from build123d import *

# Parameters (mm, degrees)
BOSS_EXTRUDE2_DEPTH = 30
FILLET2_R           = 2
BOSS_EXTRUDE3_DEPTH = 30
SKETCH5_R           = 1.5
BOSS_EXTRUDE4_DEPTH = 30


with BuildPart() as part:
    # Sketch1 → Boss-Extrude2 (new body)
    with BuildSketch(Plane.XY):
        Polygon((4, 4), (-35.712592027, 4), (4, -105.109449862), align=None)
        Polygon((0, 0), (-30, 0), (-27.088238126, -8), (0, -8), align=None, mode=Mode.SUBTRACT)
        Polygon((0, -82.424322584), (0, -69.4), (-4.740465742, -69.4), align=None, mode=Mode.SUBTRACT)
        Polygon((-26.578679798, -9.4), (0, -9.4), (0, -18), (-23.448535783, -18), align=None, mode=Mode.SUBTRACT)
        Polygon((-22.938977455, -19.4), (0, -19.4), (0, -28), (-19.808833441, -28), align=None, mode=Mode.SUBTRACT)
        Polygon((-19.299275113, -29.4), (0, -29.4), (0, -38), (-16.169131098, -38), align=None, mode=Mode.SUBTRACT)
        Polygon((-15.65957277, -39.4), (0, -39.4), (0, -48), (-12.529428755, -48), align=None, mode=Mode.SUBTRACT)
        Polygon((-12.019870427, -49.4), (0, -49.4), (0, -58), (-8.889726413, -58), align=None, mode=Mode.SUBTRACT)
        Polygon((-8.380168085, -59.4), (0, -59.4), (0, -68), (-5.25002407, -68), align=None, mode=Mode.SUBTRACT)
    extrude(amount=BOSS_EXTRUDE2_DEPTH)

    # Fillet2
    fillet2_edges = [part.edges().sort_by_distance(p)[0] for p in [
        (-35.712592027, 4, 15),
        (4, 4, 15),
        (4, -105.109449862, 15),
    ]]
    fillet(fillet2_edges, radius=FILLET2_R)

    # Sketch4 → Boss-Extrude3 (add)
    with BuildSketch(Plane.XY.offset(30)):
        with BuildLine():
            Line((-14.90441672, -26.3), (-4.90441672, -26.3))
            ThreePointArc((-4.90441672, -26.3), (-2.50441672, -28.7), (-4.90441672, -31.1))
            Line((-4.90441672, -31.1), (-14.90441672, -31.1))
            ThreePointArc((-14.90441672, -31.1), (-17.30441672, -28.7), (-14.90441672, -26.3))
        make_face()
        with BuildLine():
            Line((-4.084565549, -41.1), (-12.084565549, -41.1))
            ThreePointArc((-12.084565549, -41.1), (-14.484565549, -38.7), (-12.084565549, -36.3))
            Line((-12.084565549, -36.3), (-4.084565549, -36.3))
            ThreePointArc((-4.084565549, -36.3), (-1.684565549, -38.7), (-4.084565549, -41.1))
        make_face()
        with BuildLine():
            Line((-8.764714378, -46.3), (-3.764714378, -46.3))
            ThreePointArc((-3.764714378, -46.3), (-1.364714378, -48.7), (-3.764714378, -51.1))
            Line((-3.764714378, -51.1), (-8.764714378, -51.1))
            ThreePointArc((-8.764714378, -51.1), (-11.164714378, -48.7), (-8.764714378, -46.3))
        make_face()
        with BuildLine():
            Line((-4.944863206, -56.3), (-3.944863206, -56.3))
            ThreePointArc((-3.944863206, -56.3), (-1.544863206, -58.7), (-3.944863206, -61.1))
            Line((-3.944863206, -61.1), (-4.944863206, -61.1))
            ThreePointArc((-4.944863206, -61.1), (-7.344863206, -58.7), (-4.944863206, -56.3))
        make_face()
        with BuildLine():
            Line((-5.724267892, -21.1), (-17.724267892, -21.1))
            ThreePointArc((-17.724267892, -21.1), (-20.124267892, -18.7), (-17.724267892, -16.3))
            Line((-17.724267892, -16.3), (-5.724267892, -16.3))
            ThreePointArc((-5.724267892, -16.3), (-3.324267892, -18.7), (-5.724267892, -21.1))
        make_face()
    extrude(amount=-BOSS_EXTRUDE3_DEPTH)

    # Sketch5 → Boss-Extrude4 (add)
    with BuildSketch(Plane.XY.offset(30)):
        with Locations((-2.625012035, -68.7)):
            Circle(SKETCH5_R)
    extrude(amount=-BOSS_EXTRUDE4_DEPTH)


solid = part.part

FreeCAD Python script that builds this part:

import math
import FreeCAD as App
import Part
import Sketcher
from FreeCAD import Vector
Q = App.Units.Quantity


def edges_at(feature, points):
    """Names of the edges that pass closest to the given points."""
    edges = feature.Shape.Edges
    near = lambda p: min(range(len(edges)), key=lambda i: edges[i].distToShape(Part.Vertex(*p))[0])
    return sorted({f"Edge{near(p) + 1}" for p in points})


def add_polygon(sketch, points):
    """Adds a closed chain of lines whose ends are joined by coincident constraints."""
    first, n = sketch.GeometryCount, len(points)
    for a, b in zip(points, points[1:] + points[:1]):
        sketch.addGeometry(Part.LineSegment(App.Vector(*a, 0), App.Vector(*b, 0)), False)
    for i in range(n):
        sketch.addConstraint(Sketcher.Constraint("Coincident", first + i, 2, first + (i + 1) % n, 1))

doc = App.newDocument("Part")
body = doc.addObject("PartDesign::Body", "Body")

# Sketch on XY plane
sketch1 = body.newObject("Sketcher::SketchObject", "Sketch")
sketch1.AttachmentSupport = (doc.getObject("XY_Plane"), [""])
sketch1.MapMode = "FlatFace"
add_polygon(sketch1, [(4, 4), (-35.712592, 4), (4, -105.10945)])  # lines 0-2
add_polygon(sketch1, [(0, -69.4), (0, -82.424323), (-4.740466, -69.4)])  # lines 3-5
add_polygon(sketch1, [(-5.250024, -68), (-8.380168, -59.4), (0, -59.4), (0, -68)])  # lines 6-9
add_polygon(sketch1, [(-12.529429, -48), (-15.659573, -39.4), (0, -39.4), (0, -48)])  # lines 10-13
add_polygon(sketch1, [(-8.889726, -58), (-12.01987, -49.4), (0, -49.4), (0, -58)])  # lines 14-17
add_polygon(sketch1, [(-16.169131, -38), (-19.299275, -29.4), (0, -29.4), (0, -38)])  # lines 18-21
add_polygon(sketch1, [(-19.808833, -28), (-22.938977, -19.4), (0, -19.4), (0, -28)])  # lines 22-25
add_polygon(sketch1, [(-23.448536, -18), (-26.57868, -9.4), (0, -9.4), (0, -18)])  # lines 26-29
add_polygon(sketch1, [(-30, 0), (0, 0), (0, -8), (-27.088238, -8)])  # lines 30-33
sketch1.addConstraint(Sketcher.Constraint("Horizontal", 0))
sketch1.addConstraint(Sketcher.Constraint("Vertical", 2))
sketch1.addConstraint(Sketcher.Constraint("Vertical", 3))
sketch1.addConstraint(Sketcher.Constraint("Horizontal", 5))
sketch1.addConstraint(Sketcher.Constraint("Horizontal", 7))
sketch1.addConstraint(Sketcher.Constraint("Vertical", 8))
sketch1.addConstraint(Sketcher.Constraint("Horizontal", 9))
sketch1.addConstraint(Sketcher.Constraint("Horizontal", 11))
sketch1.addConstraint(Sketcher.Constraint("Vertical", 12))
sketch1.addConstraint(Sketcher.Constraint("Horizontal", 13))
sketch1.addConstraint(Sketcher.Constraint("Horizontal", 15))
sketch1.addConstraint(Sketcher.Constraint("Vertical", 16))
sketch1.addConstraint(Sketcher.Constraint("Horizontal", 17))
sketch1.addConstraint(Sketcher.Constraint("Horizontal", 19))
sketch1.addConstraint(Sketcher.Constraint("Vertical", 20))
sketch1.addConstraint(Sketcher.Constraint("Horizontal", 21))
sketch1.addConstraint(Sketcher.Constraint("Horizontal", 23))
sketch1.addConstraint(Sketcher.Constraint("Vertical", 24))
sketch1.addConstraint(Sketcher.Constraint("Horizontal", 25))
sketch1.addConstraint(Sketcher.Constraint("Horizontal", 27))
sketch1.addConstraint(Sketcher.Constraint("Vertical", 28))
sketch1.addConstraint(Sketcher.Constraint("Horizontal", 29))
sketch1.addConstraint(Sketcher.Constraint("Horizontal", 30))
sketch1.addConstraint(Sketcher.Constraint("Vertical", 31))
sketch1.addConstraint(Sketcher.Constraint("Horizontal", 32))
sketch1.addConstraint(Sketcher.Constraint("Coincident", 30, 2, -1, 1))
sketch1.addConstraint(Sketcher.Constraint("PointOnObject", 3, 2, -2))
sketch1.addConstraint(Sketcher.Constraint("PointOnObject", 7, 2, -2))
sketch1.addConstraint(Sketcher.Constraint("PointOnObject", 11, 2, -2))
sketch1.addConstraint(Sketcher.Constraint("PointOnObject", 15, 2, -2))
sketch1.addConstraint(Sketcher.Constraint("PointOnObject", 19, 2, -2))
sketch1.addConstraint(Sketcher.Constraint("PointOnObject", 23, 2, -2))
sketch1.addConstraint(Sketcher.Constraint("PointOnObject", 27, 2, -2))
sketch1.addConstraint(Sketcher.Constraint("Parallel", 1, 4))
sketch1.addConstraint(Sketcher.Constraint("Parallel", 4, 6))
sketch1.addConstraint(Sketcher.Constraint("Parallel", 6, 10))
sketch1.addConstraint(Sketcher.Constraint("Parallel", 10, 14))
sketch1.addConstraint(Sketcher.Constraint("Parallel", 14, 18))
sketch1.addConstraint(Sketcher.Constraint("Parallel", 18, 22))
sketch1.addConstraint(Sketcher.Constraint("Parallel", 22, 26))
sketch1.addConstraint(Sketcher.Constraint("Parallel", 26, 33))
sketch1.addConstraint(Sketcher.Constraint("Equal", 8, 12))
sketch1.addConstraint(Sketcher.Constraint("Equal", 12, 16))
sketch1.addConstraint(Sketcher.Constraint("Equal", 16, 20))
sketch1.addConstraint(Sketcher.Constraint("Equal", 20, 24))
sketch1.addConstraint(Sketcher.Constraint("Equal", 24, 28))
sketch1.addConstraint(Sketcher.Constraint("DistanceX", 30, 1, 30, 2, 30.0))
sketch1.addConstraint(Sketcher.Constraint("DistanceY", 31, 2, 31, 1, 8.0))
sketch1.addConstraint(Sketcher.Constraint("Angle", 1, Q("-70 deg")))
sketch1.addConstraint(Sketcher.Constraint("DistanceY", 8, 2, 8, 1, 8.6))
sketch1.addConstraint(Sketcher.Constraint("DistanceY", -1, 1, 0, 2, 4.0))
sketch1.addConstraint(Sketcher.Constraint("DistanceX", -1, 1, 1, 2, 4.0))
sketch1.addConstraint(Sketcher.Constraint("DistanceY", 8, 2, -1, 1, 68.0))
sketch1.addConstraint(Sketcher.Constraint("DistanceY", 12, 2, -1, 1, 48.0))
sketch1.addConstraint(Sketcher.Constraint("DistanceY", 16, 2, -1, 1, 58.0))
sketch1.addConstraint(Sketcher.Constraint("DistanceY", 20, 2, -1, 1, 38.0))
sketch1.addConstraint(Sketcher.Constraint("DistanceY", 24, 2, -1, 1, 28.0))
sketch1.addConstraint(Sketcher.Constraint("DistanceY", 28, 2, -1, 1, 18.0))
sketch1.addConstraint(Sketcher.Constraint("DistanceY", 4, 2, 6, 2, 10.0))
sketch1.addConstraint(Sketcher.Constraint("DistanceX", 7, 1, 7, 2, 8.380168))
sketch1.addConstraint(Sketcher.Constraint("DistanceX", 13, 2, 13, 1, 12.529429))
sketch1.addConstraint(Sketcher.Constraint("DistanceX", 15, 1, 15, 2, 12.01987))
sketch1.addConstraint(Sketcher.Constraint("DistanceX", 21, 2, 21, 1, 16.169131))
sketch1.addConstraint(Sketcher.Constraint("DistanceX", 27, 1, 27, 2, 26.57868))
sketch1.addConstraint(Sketcher.Constraint("DistanceY", 2, 1, 2, 2, 109.10945))
sketch1.addConstraint(Sketcher.Constraint("DistanceX", 5, 1, 5, 2, 4.740466))
sketch1.addConstraint(Sketcher.Constraint("DistanceX", 23, 1, 23, 2, 22.938977))
pad1 = body.newObject("PartDesign::Pad", "Pad")
pad1.Profile = sketch1
pad1.Length = 30
doc.recompute()

fillet = body.newObject("PartDesign::Fillet", "Fillet")
fillet.Base = (pad1, edges_at(pad1, [(-35.713, 4, 15), (4, 4, 15), (4, -105.109, 15)]))
fillet.Radius = 2

# Sketch on XY plane
sketch2 = body.newObject("Sketcher::SketchObject", "Sketch001")
sketch2.AttachmentSupport = (doc.getObject("XY_Plane"), [""])
sketch2.MapMode = "FlatFace"
sketch2.AttachmentOffset = App.Placement(Vector(0, 0, 30), App.Rotation())
sketch2.addGeometry(Part.LineSegment(Vector(-4.904417, -26.3, 0), Vector(-14.904417, -26.3, 0)), False)
sketch2.addGeometry(Part.ArcOfCircle(Part.Circle(Vector(-14.904417, -28.7, 0), Vector(0, 0, 1), 2.4), math.radians(90), math.radians(270)), False)
sketch2.addGeometry(Part.LineSegment(Vector(-14.904417, -31.1, 0), Vector(-4.904417, -31.1, 0)), False)
sketch2.addGeometry(Part.ArcOfCircle(Part.Circle(Vector(-4.904417, -28.7, 0), Vector(0, 0, 1), 2.4), math.radians(-90), math.radians(90)), False)
sketch2.addGeometry(Part.LineSegment(Vector(-12.084566, -41.1, 0), Vector(-4.084566, -41.1, 0)), False)
sketch2.addGeometry(Part.ArcOfCircle(Part.Circle(Vector(-4.084566, -38.7, 0), Vector(0, 0, 1), 2.4), math.radians(-90), math.radians(90)), False)
sketch2.addGeometry(Part.LineSegment(Vector(-4.084566, -36.3, 0), Vector(-12.084566, -36.3, 0)), False)
sketch2.addGeometry(Part.ArcOfCircle(Part.Circle(Vector(-12.084566, -38.7, 0), Vector(0, 0, 1), 2.4), math.radians(90), math.radians(270)), False)
sketch2.addGeometry(Part.LineSegment(Vector(-3.764714, -46.3, 0), Vector(-8.764714, -46.3, 0)), False)
sketch2.addGeometry(Part.ArcOfCircle(Part.Circle(Vector(-8.764714, -48.7, 0), Vector(0, 0, 1), 2.4), math.radians(90), math.radians(270)), False)
sketch2.addGeometry(Part.LineSegment(Vector(-8.764714, -51.1, 0), Vector(-3.764714, -51.1, 0)), False)
sketch2.addGeometry(Part.ArcOfCircle(Part.Circle(Vector(-3.764714, -48.7, 0), Vector(0, 0, 1), 2.4), math.radians(-90), math.radians(90)), False)
sketch2.addGeometry(Part.LineSegment(Vector(-3.944863, -56.3, 0), Vector(-4.944863, -56.3, 0)), False)
sketch2.addGeometry(Part.ArcOfCircle(Part.Circle(Vector(-4.944863, -58.7, 0), Vector(0, 0, 1), 2.4), math.radians(90), math.radians(270)), False)
sketch2.addGeometry(Part.LineSegment(Vector(-4.944863, -61.1, 0), Vector(-3.944863, -61.1, 0)), False)
sketch2.addGeometry(Part.ArcOfCircle(Part.Circle(Vector(-3.944863, -58.7, 0), Vector(0, 0, 1), 2.4), math.radians(-90), math.radians(90)), False)
sketch2.addGeometry(Part.LineSegment(Vector(-17.724268, -21.1, 0), Vector(-5.724268, -21.1, 0)), False)
sketch2.addGeometry(Part.ArcOfCircle(Part.Circle(Vector(-5.724268, -18.7, 0), Vector(0, 0, 1), 2.4), math.radians(-90), math.radians(90)), False)
sketch2.addGeometry(Part.LineSegment(Vector(-5.724268, -16.3, 0), Vector(-17.724268, -16.3, 0)), False)
sketch2.addGeometry(Part.ArcOfCircle(Part.Circle(Vector(-17.724268, -18.7, 0), Vector(0, 0, 1), 2.4), math.radians(90), math.radians(270)), False)
sketch2.addConstraint(Sketcher.Constraint("Tangent", 0, 2, 1, 1))
sketch2.addConstraint(Sketcher.Constraint("Tangent", 1, 2, 2, 1))
sketch2.addConstraint(Sketcher.Constraint("Tangent", 2, 2, 3, 1))
sketch2.addConstraint(Sketcher.Constraint("Tangent", 3, 2, 0, 1))
sketch2.addConstraint(Sketcher.Constraint("Tangent", 4, 2, 5, 1))
sketch2.addConstraint(Sketcher.Constraint("Tangent", 5, 2, 6, 1))
sketch2.addConstraint(Sketcher.Constraint("Tangent", 6, 2, 7, 1))
sketch2.addConstraint(Sketcher.Constraint("Tangent", 7, 2, 4, 1))
sketch2.addConstraint(Sketcher.Constraint("Tangent", 8, 2, 9, 1))
sketch2.addConstraint(Sketcher.Constraint("Tangent", 9, 2, 10, 1))
sketch2.addConstraint(Sketcher.Constraint("Tangent", 10, 2, 11, 1))
sketch2.addConstraint(Sketcher.Constraint("Tangent", 11, 2, 8, 1))
sketch2.addConstraint(Sketcher.Constraint("Tangent", 12, 2, 13, 1))
sketch2.addConstraint(Sketcher.Constraint("Tangent", 13, 2, 14, 1))
sketch2.addConstraint(Sketcher.Constraint("Tangent", 14, 2, 15, 1))
sketch2.addConstraint(Sketcher.Constraint("Tangent", 15, 2, 12, 1))
sketch2.addConstraint(Sketcher.Constraint("Tangent", 16, 2, 17, 1))
sketch2.addConstraint(Sketcher.Constraint("Tangent", 17, 2, 18, 1))
sketch2.addConstraint(Sketcher.Constraint("Tangent", 18, 2, 19, 1))
sketch2.addConstraint(Sketcher.Constraint("Tangent", 19, 2, 16, 1))
sketch2.addConstraint(Sketcher.Constraint("Horizontal", 0))
sketch2.addConstraint(Sketcher.Constraint("Horizontal", 2))
sketch2.addConstraint(Sketcher.Constraint("Horizontal", 4))
sketch2.addConstraint(Sketcher.Constraint("Horizontal", 6))
sketch2.addConstraint(Sketcher.Constraint("Horizontal", 8))
sketch2.addConstraint(Sketcher.Constraint("Horizontal", 10))
sketch2.addConstraint(Sketcher.Constraint("Horizontal", 12))
sketch2.addConstraint(Sketcher.Constraint("Horizontal", 14))
sketch2.addConstraint(Sketcher.Constraint("Horizontal", 16))
sketch2.addConstraint(Sketcher.Constraint("Horizontal", 18))
sketch2.addConstraint(Sketcher.Constraint("Equal", 3, 5))
sketch2.addConstraint(Sketcher.Constraint("Equal", 7, 9))
sketch2.addConstraint(Sketcher.Constraint("Equal", 11, 13))
sketch2.addConstraint(Sketcher.Constraint("Equal", 15, 17))
sketch2.addConstraint(Sketcher.Constraint("Radius", 1, 2.4))
sketch2.addConstraint(Sketcher.Constraint("DistanceX", 0, 2, 0, 1, 10.0))
sketch2.addConstraint(Sketcher.Constraint("DistanceX", 4, 1, 4, 2, 8.0))
sketch2.addConstraint(Sketcher.Constraint("DistanceX", 8, 2, 8, 1, 5.0))
sketch2.addConstraint(Sketcher.Constraint("DistanceX", 12, 2, 12, 1, 1.0))
sketch2.addConstraint(Sketcher.Constraint("DistanceX", 16, 1, 16, 2, 12.0))
sketch2.addConstraint(Sketcher.Constraint("DistanceY", 5, 3, 3, 3, 10.0))
sketch2.addConstraint(Sketcher.Constraint("DistanceY", 9, 3, 7, 3, 10.0))
sketch2.addConstraint(Sketcher.Constraint("DistanceY", 13, 3, 11, 3, 10.0))
sketch2.addConstraint(Sketcher.Constraint("DistanceY", 3, 3, 17, 3, 10.0))
sketch2.addConstraint(Sketcher.Constraint("DistanceY", 1, 3, -1, 1, 28.7))
sketch2.addConstraint(Sketcher.Constraint("DistanceX", 3, 3, 5, 3, 0.819851))
sketch2.addConstraint(Sketcher.Constraint("DistanceX", 7, 3, 9, 3, 3.319851))
sketch2.addConstraint(Sketcher.Constraint("DistanceX", 13, 3, 11, 3, 1.180149))
sketch2.addConstraint(Sketcher.Constraint("DistanceX", 17, 3, 3, 3, 0.819851))
sketch2.addConstraint(Sketcher.Constraint("DistanceX", 1, 3, -1, 1, 14.904417))
pad2 = body.newObject("PartDesign::Pad", "Pad001")
pad2.Profile = sketch2
pad2.Length = 30
pad2.Reversed = True

# Sketch on XY plane
sketch3 = body.newObject("Sketcher::SketchObject", "Sketch002")
sketch3.AttachmentSupport = (doc.getObject("XY_Plane"), [""])
sketch3.MapMode = "FlatFace"
sketch3.AttachmentOffset = App.Placement(Vector(0, 0, 30), App.Rotation())
sketch3.addGeometry(Part.Circle(Vector(-2.625012, -68.7, 0), Vector(0, 0, 1), 1.5), False)
sketch3.addConstraint(Sketcher.Constraint("Diameter", 0, 3.0))
sketch3.addConstraint(Sketcher.Constraint("DistanceY", 0, 3, -1, 1, 68.7))
sketch3.addConstraint(Sketcher.Constraint("DistanceX", 0, 3, -1, 1, 2.625012))
pad3 = body.newObject("PartDesign::Pad", "Pad002")
pad3.Profile = sketch3
pad3.Length = 30
pad3.Reversed = True

doc.recompute()
